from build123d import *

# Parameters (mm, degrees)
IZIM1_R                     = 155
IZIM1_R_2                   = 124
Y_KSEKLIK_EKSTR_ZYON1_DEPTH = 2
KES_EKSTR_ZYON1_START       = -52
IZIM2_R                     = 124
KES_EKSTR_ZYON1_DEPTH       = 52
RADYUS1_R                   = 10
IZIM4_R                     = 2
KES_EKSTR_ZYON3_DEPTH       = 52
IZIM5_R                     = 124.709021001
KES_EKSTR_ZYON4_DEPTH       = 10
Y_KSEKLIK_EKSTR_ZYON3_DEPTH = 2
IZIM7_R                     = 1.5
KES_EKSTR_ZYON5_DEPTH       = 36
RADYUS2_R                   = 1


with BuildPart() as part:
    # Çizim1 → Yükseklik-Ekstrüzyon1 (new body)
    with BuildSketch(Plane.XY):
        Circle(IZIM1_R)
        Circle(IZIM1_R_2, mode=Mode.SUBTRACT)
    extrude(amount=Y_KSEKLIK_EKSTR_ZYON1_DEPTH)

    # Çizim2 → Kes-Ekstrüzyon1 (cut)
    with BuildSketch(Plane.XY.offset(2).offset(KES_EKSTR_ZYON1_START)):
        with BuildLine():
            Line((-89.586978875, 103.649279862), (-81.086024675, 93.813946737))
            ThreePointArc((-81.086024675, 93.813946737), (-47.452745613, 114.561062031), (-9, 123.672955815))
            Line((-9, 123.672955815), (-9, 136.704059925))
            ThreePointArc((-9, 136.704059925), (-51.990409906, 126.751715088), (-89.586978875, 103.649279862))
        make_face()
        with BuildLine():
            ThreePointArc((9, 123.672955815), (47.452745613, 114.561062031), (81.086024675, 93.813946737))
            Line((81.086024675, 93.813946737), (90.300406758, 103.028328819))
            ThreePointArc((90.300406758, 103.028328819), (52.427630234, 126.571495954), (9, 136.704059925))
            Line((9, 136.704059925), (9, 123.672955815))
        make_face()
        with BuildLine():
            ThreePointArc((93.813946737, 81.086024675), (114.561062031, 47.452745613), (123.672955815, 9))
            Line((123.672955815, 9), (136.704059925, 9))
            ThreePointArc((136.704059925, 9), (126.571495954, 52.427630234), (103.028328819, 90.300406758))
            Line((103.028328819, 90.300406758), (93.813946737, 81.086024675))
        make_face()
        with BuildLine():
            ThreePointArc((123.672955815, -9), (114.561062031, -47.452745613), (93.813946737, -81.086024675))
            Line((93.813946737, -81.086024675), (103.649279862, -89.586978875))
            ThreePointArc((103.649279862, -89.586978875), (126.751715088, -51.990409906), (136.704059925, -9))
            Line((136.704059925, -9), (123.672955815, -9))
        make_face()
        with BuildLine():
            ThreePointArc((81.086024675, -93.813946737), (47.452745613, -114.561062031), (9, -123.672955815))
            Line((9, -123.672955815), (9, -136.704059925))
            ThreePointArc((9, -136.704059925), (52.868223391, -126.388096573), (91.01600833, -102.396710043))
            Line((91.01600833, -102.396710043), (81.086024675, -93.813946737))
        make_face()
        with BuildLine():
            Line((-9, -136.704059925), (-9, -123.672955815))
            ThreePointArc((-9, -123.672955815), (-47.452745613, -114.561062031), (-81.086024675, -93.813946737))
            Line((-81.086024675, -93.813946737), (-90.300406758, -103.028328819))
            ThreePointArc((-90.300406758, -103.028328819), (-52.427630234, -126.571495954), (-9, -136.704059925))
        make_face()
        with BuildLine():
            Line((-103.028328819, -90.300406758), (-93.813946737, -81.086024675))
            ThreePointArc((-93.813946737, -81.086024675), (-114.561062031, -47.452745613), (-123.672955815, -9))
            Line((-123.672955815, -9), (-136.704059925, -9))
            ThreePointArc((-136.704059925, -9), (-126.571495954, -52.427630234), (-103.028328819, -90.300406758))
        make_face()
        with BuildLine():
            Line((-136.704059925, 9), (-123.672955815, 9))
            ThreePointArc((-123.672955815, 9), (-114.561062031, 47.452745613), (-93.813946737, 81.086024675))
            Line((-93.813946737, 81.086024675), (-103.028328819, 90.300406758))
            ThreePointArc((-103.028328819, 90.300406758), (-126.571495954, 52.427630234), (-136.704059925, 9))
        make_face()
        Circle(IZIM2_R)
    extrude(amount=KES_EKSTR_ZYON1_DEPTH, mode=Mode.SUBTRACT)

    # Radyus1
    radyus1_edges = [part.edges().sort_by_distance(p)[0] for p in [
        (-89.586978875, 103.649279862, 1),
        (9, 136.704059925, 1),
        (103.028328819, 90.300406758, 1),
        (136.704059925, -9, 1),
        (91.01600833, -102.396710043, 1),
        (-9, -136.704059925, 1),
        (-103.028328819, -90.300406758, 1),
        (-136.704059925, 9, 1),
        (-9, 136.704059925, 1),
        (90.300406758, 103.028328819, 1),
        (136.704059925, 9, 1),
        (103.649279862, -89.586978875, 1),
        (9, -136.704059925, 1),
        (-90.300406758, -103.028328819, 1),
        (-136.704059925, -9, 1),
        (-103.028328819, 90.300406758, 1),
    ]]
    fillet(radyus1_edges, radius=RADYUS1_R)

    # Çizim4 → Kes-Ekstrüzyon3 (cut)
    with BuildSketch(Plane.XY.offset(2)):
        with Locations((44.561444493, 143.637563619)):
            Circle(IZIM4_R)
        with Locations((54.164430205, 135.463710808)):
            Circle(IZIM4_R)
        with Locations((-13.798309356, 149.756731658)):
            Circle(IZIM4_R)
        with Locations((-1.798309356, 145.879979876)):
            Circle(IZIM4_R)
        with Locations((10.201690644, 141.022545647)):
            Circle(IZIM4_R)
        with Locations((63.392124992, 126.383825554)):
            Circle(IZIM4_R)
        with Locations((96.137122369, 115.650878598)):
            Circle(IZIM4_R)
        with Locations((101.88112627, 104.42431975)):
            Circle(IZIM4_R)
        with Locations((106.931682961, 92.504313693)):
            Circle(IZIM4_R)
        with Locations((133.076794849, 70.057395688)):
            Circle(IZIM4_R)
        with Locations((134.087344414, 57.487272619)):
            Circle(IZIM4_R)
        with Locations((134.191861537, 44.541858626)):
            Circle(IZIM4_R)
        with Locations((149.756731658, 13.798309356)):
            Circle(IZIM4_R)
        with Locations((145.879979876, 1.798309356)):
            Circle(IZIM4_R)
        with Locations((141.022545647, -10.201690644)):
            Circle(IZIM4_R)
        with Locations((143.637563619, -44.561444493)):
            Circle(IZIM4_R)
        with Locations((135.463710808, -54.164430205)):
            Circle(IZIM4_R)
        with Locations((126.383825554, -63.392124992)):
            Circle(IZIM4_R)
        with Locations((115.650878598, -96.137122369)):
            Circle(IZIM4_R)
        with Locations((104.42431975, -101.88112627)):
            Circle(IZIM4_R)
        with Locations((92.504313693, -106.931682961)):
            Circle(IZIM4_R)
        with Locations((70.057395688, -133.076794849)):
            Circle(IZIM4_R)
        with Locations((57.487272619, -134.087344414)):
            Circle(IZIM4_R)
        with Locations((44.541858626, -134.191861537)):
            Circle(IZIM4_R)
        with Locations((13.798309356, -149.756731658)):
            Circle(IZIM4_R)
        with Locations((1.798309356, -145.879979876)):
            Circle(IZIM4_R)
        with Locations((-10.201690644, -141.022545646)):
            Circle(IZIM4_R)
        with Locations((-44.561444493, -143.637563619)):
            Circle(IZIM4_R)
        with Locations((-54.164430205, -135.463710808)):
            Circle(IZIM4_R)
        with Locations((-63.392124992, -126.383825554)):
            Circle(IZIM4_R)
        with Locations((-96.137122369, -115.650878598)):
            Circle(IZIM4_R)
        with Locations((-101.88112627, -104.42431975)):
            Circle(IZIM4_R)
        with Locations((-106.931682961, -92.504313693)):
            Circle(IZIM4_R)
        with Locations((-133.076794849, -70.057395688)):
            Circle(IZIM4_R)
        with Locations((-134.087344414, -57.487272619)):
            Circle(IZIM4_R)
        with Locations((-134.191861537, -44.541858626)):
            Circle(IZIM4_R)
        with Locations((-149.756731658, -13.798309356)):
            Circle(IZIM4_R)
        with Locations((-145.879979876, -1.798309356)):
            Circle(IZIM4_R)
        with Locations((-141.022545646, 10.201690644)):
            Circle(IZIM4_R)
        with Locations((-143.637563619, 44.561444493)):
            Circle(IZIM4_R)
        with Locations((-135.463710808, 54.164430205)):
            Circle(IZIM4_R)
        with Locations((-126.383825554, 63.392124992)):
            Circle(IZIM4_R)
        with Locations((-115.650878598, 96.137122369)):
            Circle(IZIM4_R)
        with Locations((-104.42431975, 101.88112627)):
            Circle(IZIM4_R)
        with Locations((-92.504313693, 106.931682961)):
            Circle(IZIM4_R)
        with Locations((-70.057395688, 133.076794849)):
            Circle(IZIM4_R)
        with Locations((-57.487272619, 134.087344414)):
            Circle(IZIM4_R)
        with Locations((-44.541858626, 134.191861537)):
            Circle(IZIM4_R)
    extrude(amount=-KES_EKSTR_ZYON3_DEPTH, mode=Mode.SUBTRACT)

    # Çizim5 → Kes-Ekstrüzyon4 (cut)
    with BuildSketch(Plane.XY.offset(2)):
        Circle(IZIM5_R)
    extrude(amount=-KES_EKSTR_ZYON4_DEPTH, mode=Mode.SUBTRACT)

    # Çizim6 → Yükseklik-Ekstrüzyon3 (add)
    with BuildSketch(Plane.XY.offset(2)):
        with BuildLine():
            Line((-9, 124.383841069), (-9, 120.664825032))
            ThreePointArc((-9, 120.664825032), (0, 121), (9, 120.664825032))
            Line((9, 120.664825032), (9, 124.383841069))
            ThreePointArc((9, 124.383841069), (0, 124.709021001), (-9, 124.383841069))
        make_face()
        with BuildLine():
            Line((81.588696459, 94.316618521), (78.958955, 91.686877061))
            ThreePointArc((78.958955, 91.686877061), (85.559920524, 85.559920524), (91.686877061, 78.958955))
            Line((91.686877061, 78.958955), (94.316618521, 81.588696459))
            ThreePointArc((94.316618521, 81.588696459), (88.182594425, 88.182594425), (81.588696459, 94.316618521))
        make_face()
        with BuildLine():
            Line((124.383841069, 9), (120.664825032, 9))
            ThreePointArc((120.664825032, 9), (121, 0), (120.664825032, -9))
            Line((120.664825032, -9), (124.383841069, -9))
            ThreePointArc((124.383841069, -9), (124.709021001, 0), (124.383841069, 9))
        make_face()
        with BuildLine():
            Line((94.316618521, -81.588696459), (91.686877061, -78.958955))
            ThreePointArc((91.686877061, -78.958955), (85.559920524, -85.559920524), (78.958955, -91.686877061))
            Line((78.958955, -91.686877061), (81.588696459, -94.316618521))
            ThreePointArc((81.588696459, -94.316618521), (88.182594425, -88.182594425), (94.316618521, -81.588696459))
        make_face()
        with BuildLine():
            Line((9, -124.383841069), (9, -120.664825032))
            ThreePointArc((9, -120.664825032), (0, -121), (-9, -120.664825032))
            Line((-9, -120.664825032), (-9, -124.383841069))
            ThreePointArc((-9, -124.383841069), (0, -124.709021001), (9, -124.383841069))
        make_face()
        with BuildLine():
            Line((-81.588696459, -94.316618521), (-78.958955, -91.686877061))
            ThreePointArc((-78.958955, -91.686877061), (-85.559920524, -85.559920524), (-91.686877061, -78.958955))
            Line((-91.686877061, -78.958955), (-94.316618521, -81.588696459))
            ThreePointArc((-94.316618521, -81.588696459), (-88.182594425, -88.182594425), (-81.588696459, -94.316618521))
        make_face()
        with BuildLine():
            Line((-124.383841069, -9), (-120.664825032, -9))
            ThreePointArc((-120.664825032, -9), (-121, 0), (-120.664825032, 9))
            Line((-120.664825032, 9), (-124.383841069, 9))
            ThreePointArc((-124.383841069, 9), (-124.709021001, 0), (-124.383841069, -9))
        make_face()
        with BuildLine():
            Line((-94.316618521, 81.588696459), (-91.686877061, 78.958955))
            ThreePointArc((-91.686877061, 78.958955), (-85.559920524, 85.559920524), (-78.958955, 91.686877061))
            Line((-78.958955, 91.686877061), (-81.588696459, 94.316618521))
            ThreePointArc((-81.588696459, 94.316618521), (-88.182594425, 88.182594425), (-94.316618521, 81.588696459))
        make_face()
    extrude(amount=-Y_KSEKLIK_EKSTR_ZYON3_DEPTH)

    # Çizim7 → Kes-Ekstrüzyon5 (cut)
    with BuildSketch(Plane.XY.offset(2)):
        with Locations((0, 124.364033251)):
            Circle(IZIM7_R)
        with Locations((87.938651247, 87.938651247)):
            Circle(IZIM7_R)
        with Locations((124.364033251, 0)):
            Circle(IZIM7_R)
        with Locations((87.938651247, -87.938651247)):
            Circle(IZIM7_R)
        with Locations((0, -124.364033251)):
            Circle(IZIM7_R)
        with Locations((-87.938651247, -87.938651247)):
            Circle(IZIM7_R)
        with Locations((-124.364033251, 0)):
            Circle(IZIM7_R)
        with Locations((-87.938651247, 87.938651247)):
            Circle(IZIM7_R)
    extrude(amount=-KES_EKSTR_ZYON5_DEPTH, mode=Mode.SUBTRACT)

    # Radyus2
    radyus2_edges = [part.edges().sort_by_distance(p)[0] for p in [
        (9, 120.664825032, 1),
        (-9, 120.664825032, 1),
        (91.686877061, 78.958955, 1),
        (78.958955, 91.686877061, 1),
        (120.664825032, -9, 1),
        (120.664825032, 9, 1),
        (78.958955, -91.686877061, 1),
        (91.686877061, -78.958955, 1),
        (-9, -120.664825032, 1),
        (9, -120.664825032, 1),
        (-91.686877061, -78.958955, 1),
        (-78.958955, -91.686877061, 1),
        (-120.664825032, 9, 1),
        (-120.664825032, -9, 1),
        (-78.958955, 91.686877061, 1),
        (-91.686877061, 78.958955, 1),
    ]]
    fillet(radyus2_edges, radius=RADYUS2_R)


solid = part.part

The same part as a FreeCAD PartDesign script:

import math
import FreeCAD as App
import Part
import Sketcher
Q = App.Units.Quantity


def edges_at(feature, points):
    """Names of the edges that pass closest to the given points."""
    edges = feature.Shape.Edges
    near = lambda p: min(range(len(edges)), key=lambda i: edges[i].distToShape(Part.Vertex(*p))[0])
    return sorted({f"Edge{near(p) + 1}" for p in points})

doc = App.newDocument("Part")
body = doc.addObject("PartDesign::Body", "Body")

# Sketch on XY plane
sketch1 = body.newObject("Sketcher::SketchObject", "Sketch")
sketch1.AttachmentSupport = (doc.getObject("XY_Plane"), [""])
sketch1.MapMode = "FlatFace"
sketch1.addGeometry([
    Part.Circle(App.Vector(0, 0, 0), App.Vector(0, 0, 1), 155),
    Part.Circle(App.Vector(0, 0, 0), App.Vector(0, 0, 1), 124),
], False)
sketch1.addConstraint([
    Sketcher.Constraint("Coincident", 0, 3, -1, 1),
    Sketcher.Constraint("Coincident", 1, 3, -1, 1),
    Sketcher.Constraint("Diameter", 0, Q("310 mm")),
    Sketcher.Constraint("Diameter", 1, Q("248 mm")),
])
pad1 = body.newObject("PartDesign::Pad", "Pad")
pad1.Profile = sketch1
pad1.Length = 2

# Sketch on XY plane
sketch2 = body.newObject("Sketcher::SketchObject", "Sketch001")
sketch2.AttachmentSupport = (doc.getObject("XY_Plane"), [""])
sketch2.MapMode = "FlatFace"
sketch2.AttachmentOffset = App.Placement(App.Vector(0, 0, -50), App.Rotation())
sketch2.addGeometry([
    Part.LineSegment(App.Vector(-90, 104, 0), App.Vector(-81, 94, 0)),  # 0
    Part.ArcOfCircle(Part.Circle(App.Vector(0, 0, 0), App.Vector(0, 0, 1), 124), math.radians(130.84), math.radians(139.16)),  # 1
    Part.LineSegment(App.Vector(-94, 81, 0), App.Vector(-103, 90, 0)),  # 2
    Part.ArcOfCircle(Part.Circle(App.Vector(0, 0, 0), App.Vector(0, 0, 1), 137), math.radians(139), math.radians(176)),  # 3
    Part.LineSegment(App.Vector(-137, 9, 0), App.Vector(-124, 9, 0)),  # 4
    Part.ArcOfCircle(Part.Circle(App.Vector(0, 0, 0), App.Vector(0, 0, 1), 124), math.radians(175.84), math.radians(184.16)),  # 5
    Part.LineSegment(App.Vector(-124, -9, 0), App.Vector(-137, -9, 0)),  # 6
    Part.ArcOfCircle(Part.Circle(App.Vector(0, 0, 0), App.Vector(0, 0, 1), 137), math.radians(-176), math.radians(-139)),  # 7
    Part.LineSegment(App.Vector(-103, -90, 0), App.Vector(-94, -81, 0)),  # 8
    Part.ArcOfCircle(Part.Circle(App.Vector(0, 0, 0), App.Vector(0, 0, 1), 124), math.radians(-139.16), math.radians(-130.84)),  # 9
    Part.LineSegment(App.Vector(-81, -94, 0), App.Vector(-90, -103, 0)),  # 10
    Part.ArcOfCircle(Part.Circle(App.Vector(0, 0, 0), App.Vector(0, 0, 1), 137), math.radians(-131), math.radians(-94)),  # 11
    Part.LineSegment(App.Vector(-9, -137, 0), App.Vector(-9, -124, 0)),  # 12
    Part.ArcOfCircle(Part.Circle(App.Vector(0, 0, 0), App.Vector(0, 0, 1), 124), math.radians(-94.16), math.radians(-85.84)),  # 13
    Part.LineSegment(App.Vector(9, -124, 0), App.Vector(9, -137, 0)),  # 14
    Part.ArcOfCircle(Part.Circle(App.Vector(0, 0, 0), App.Vector(0, 0, 1), 137), math.radians(-86), math.radians(-48)),  # 15
    Part.LineSegment(App.Vector(91, -102, 0), App.Vector(81, -94, 0)),  # 16
    Part.ArcOfCircle(Part.Circle(App.Vector(0, 0, 0), App.Vector(0, 0, 1), 124), math.radians(-49.16), math.radians(-40.84)),  # 17
    Part.LineSegment(App.Vector(94, -81, 0), App.Vector(104, -90, 0)),  # 18
    Part.ArcOfCircle(Part.Circle(App.Vector(0, 0, 0), App.Vector(0, 0, 1), 137), math.radians(-41), math.radians(-4)),  # 19
    Part.LineSegment(App.Vector(137, -9, 0), App.Vector(124, -9, 0)),  # 20
    Part.ArcOfCircle(Part.Circle(App.Vector(0, 0, 0), App.Vector(0, 0, 1), 124), math.radians(-4.16), math.radians(4.16)),  # 21
    Part.LineSegment(App.Vector(124, 9, 0), App.Vector(137, 9, 0)),  # 22
    Part.ArcOfCircle(Part.Circle(App.Vector(0, 0, 0), App.Vector(0, 0, 1), 137), math.radians(4), math.radians(41)),  # 23
    Part.LineSegment(App.Vector(103, 90, 0), App.Vector(94, 81, 0)),  # 24
    Part.ArcOfCircle(Part.Circle(App.Vector(0, 0, 0), App.Vector(0, 0, 1), 124), math.radians(40.84), math.radians(49.16)),  # 25
    Part.LineSegment(App.Vector(81, 94, 0), App.Vector(90, 103, 0)),  # 26
    Part.ArcOfCircle(Part.Circle(App.Vector(0, 0, 0), App.Vector(0, 0, 1), 137), math.radians(49), math.radians(86)),  # 27
    Part.LineSegment(App.Vector(9, 137, 0), App.Vector(9, 124, 0)),  # 28
    Part.ArcOfCircle(Part.Circle(App.Vector(0, 0, 0), App.Vector(0, 0, 1), 124), math.radians(85.84), math.radians(94.16)),  # 29
    Part.LineSegment(App.Vector(-9, 124, 0), App.Vector(-9, 137, 0)),  # 30
    Part.ArcOfCircle(Part.Circle(App.Vector(0, 0, 0), App.Vector(0, 0, 1), 137), math.radians(94), math.radians(131)),  # 31
], False)
sketch2.addConstraint([
    Sketcher.Constraint("Coincident", 0, 2, 1, 1),
    Sketcher.Constraint("Coincident", 1, 2, 2, 1),
    Sketcher.Constraint("Coincident", 2, 2, 3, 1),
    Sketcher.Constraint("Coincident", 3, 2, 4, 1),
    Sketcher.Constraint("Coincident", 4, 2, 5, 1),
    Sketcher.Constraint("Coincident", 5, 2, 6, 1),
    Sketcher.Constraint("Coincident", 6, 2, 7, 1),
    Sketcher.Constraint("Coincident", 7, 2, 8, 1),
    Sketcher.Constraint("Coincident", 8, 2, 9, 1),
    Sketcher.Constraint("Coincident", 9, 2, 10, 1),
    Sketcher.Constraint("Coincident", 10, 2, 11, 1),
    Sketcher.Constraint("Coincident", 11, 2, 12, 1),
    Sketcher.Constraint("Coincident", 12, 2, 13, 1),
    Sketcher.Constraint("Coincident", 13, 2, 14, 1),
    Sketcher.Constraint("Coincident", 14, 2, 15, 1),
    Sketcher.Constraint("Coincident", 15, 2, 16, 1),
    Sketcher.Constraint("Coincident", 16, 2, 17, 1),
    Sketcher.Constraint("Coincident", 17, 2, 18, 1),
    Sketcher.Constraint("Coincident", 18, 2, 19, 1),
    Sketcher.Constraint("Coincident", 19, 2, 20, 1),
    Sketcher.Constraint("Coincident", 20, 2, 21, 1),
    Sketcher.Constraint("Coincident", 21, 2, 22, 1),
    Sketcher.Constraint("Coincident", 22, 2, 23, 1),
    Sketcher.Constraint("Coincident", 23, 2, 24, 1),
    Sketcher.Constraint("Coincident", 24, 2, 25, 1),
    Sketcher.Constraint("Coincident", 25, 2, 26, 1),
    Sketcher.Constraint("Coincident", 26, 2, 27, 1),
    Sketcher.Constraint("Coincident", 27, 2, 28, 1),
    Sketcher.Constraint("Coincident", 28, 2, 29, 1),
    Sketcher.Constraint("Coincident", 29, 2, 30, 1),
    Sketcher.Constraint("Coincident", 30, 2, 31, 1),
    Sketcher.Constraint("Coincident", 31, 2, 0, 1),
    Sketcher.Constraint("Horizontal", 4),
    Sketcher.Constraint("Horizontal", 6),
    Sketcher.Constraint("Vertical", 12),
    Sketcher.Constraint("Vertical", 14),
    Sketcher.Constraint("Horizontal", 20),
    Sketcher.Constraint("Horizontal", 22),
    Sketcher.Constraint("Vertical", 28),
    Sketcher.Constraint("Vertical", 30),
    Sketcher.Constraint("Coincident", 1, 3, -1, 1),
    Sketcher.Constraint("Coincident", 3, 3, -1, 1),
    Sketcher.Constraint("Coincident", 5, 3, -1, 1),
    Sketcher.Constraint("Coincident", 7, 3, -1, 1),
    Sketcher.Constraint("Coincident", 9, 3, -1, 1),
    Sketcher.Constraint("Coincident", 11, 3, -1, 1),
    Sketcher.Constraint("Coincident", 13, 3, -1, 1),
    Sketcher.Constraint("Coincident", 15, 3, -1, 1),
    Sketcher.Constraint("Coincident", 17, 3, -1, 1),
    Sketcher.Constraint("Coincident", 19, 3, -1, 1),
    Sketcher.Constraint("Coincident", 21, 3, -1, 1),
    Sketcher.Constraint("Coincident", 23, 3, -1, 1),
    Sketcher.Constraint("Coincident", 25, 3, -1, 1),
    Sketcher.Constraint("Coincident", 27, 3, -1, 1),
    Sketcher.Constraint("Coincident", 29, 3, -1, 1),
    Sketcher.Constraint("Coincident", 31, 3, -1, 1),
    Sketcher.Constraint("Equal", 1, 5),
    Sketcher.Constraint("Equal", 3, 7),
    Sketcher.Constraint("Equal", 5, 9),
    Sketcher.Constraint("Equal", 7, 11),
    Sketcher.Constraint("Equal", 9, 13),
    Sketcher.Constraint("Equal", 11, 15),
    Sketcher.Constraint("Equal", 13, 17),
    Sketcher.Constraint("Equal", 15, 19),
    Sketcher.Constraint("Equal", 17, 21),
    Sketcher.Constraint("Equal", 19, 23),
    Sketcher.Constraint("Equal", 21, 25),
    Sketcher.Constraint("Equal", 23, 27),
    Sketcher.Constraint("Equal", 25, 29),
    Sketcher.Constraint("Equal", 27, 31),
    Sketcher.Constraint("Perpendicular", 2, 8),
    Sketcher.Constraint("Parallel", 8, 10),
    Sketcher.Constraint("Parallel", 16, 18),
    Sketcher.Constraint("Parallel", 10, 24),
    Sketcher.Constraint("Parallel", 24, 26),
    Sketcher.Constraint("Horizontal", 12, 2, 13, 2),
    Sketcher.Constraint("Horizontal", 9, 2, 16, 2),
    Sketcher.Constraint("Horizontal", 8, 2, 17, 2),
    Sketcher.Constraint("Horizontal", 6, 2, 19, 2),
    Sketcher.Constraint("Horizontal", 4, 2, 21, 2),
    Sketcher.Constraint("Horizontal", 2, 2, 23, 2),
    Sketcher.Constraint("Horizontal", 1, 2, 24, 2),
    Sketcher.Constraint("Horizontal", 0, 2, 25, 2),
    Sketcher.Constraint("Horizontal", 28, 2, 29, 2),
    Sketcher.Constraint("Vertical", 4, 2, 5, 2),
    Sketcher.Constraint("Vertical", 2, 2, 7, 2),
    Sketcher.Constraint("Vertical", 0, 2, 9, 2),
    Sketcher.Constraint("Vertical", 14, 2, 27, 2),
    Sketcher.Constraint("Radius", 1, Q("124 mm")),
    Sketcher.Constraint("Radius", 3, Q("137 mm")),
    Sketcher.Constraint("DistanceY", -1, 1, 3, 2, Q("9 mm")),
    Sketcher.Constraint("DistanceX", 11, 2, -1, 1, Q("9 mm")),
    Sketcher.Constraint("DistanceX", 2, 2, -1, 1, Q("103.028329 mm")),
    Sketcher.Constraint("DistanceY", 10, 2, -1, 1, Q("103.028329 mm")),
    Sketcher.Constraint("DistanceX", -1, 1, 15, 2, Q("91.016008 mm")),
    Sketcher.Constraint("DistanceX", 31, 2, -1, 1, Q("89.586979 mm")),
])
pocket1 = body.newObject("PartDesign::Pocket", "Pocket")
pocket1.Profile = sketch2
pocket1.Length = 52
pocket1.Reversed = True
doc.recompute()

fillet = body.newObject("PartDesign::Fillet", "Fillet")
fillet.Base = (pocket1, edges_at(pocket1, [
    (-89.587, 103.649, 1),
    (9, 136.704, 1),
    (103.028, 90.3, 1),
    (136.704, -9, 1),
    (91.016, -102.397, 1),
    (-9, -136.704, 1),
    (-103.028, -90.3, 1),
    (-136.704, 9, 1),
    (-9, 136.704, 1),
    (90.3, 103.028, 1),
    (136.704, 9, 1),
    (103.649, -89.587, 1),
    (9, -136.704, 1),
    (-90.3, -103.028, 1),
    (-136.704, -9, 1),
    (-103.028, 90.3, 1),
]))
fillet.Radius = 10

# Sketch on XY plane
sketch3 = body.newObject("Sketcher::SketchObject", "Sketch002")
sketch3.AttachmentSupport = (doc.getObject("XY_Plane"), [""])
sketch3.MapMode = "FlatFace"
sketch3.AttachmentOffset = App.Placement(App.Vector(0, 0, 2), App.Rotation())
sketch3.addGeometry([
    Part.Circle(App.Vector(44.6, 143.6, 0), App.Vector(0, 0, 1), 2),  # 0
    Part.Circle(App.Vector(54.2, 135.5, 0), App.Vector(0, 0, 1), 2),  # 1
    Part.Circle(App.Vector(-13.8, 149.8, 0), App.Vector(0, 0, 1), 2),  # 2
    Part.Circle(App.Vector(-1.8, 145.9, 0), App.Vector(0, 0, 1), 2),  # 3
    Part.Circle(App.Vector(10.2, 141, 0), App.Vector(0, 0, 1), 2),  # 4
    Part.Circle(App.Vector(63.4, 126.4, 0), App.Vector(0, 0, 1), 2),  # 5
    Part.Circle(App.Vector(96.1, 115.7, 0), App.Vector(0, 0, 1), 2),  # 6
    Part.Circle(App.Vector(101.9, 104.4, 0), App.Vector(0, 0, 1), 2),  # 7
    Part.Circle(App.Vector(106.9, 92.5, 0), App.Vector(0, 0, 1), 2),  # 8
    Part.Circle(App.Vector(133.1, 70.1, 0), App.Vector(0, 0, 1), 2),  # 9
    Part.Circle(App.Vector(134.1, 57.5, 0), App.Vector(0, 0, 1), 2),  # 10
    Part.Circle(App.Vector(134.2, 44.5, 0), App.Vector(0, 0, 1), 2),  # 11
    Part.Circle(App.Vector(149.8, 13.8, 0), App.Vector(0, 0, 1), 2),  # 12
    Part.Circle(App.Vector(145.9, 1.8, 0), App.Vector(0, 0, 1), 2),  # 13
    Part.Circle(App.Vector(141, -10.2, 0), App.Vector(0, 0, 1), 2),  # 14
    Part.Circle(App.Vector(143.6, -44.6, 0), App.Vector(0, 0, 1), 2),  # 15
    Part.Circle(App.Vector(135.5, -54.2, 0), App.Vector(0, 0, 1), 2),  # 16
    Part.Circle(App.Vector(126.4, -63.4, 0), App.Vector(0, 0, 1), 2),  # 17
    Part.Circle(App.Vector(115.7, -96.1, 0), App.Vector(0, 0, 1), 2),  # 18
    Part.Circle(App.Vector(104.4, -101.9, 0), App.Vector(0, 0, 1), 2),  # 19
    Part.Circle(App.Vector(92.5, -106.9, 0), App.Vector(0, 0, 1), 2),  # 20
    Part.Circle(App.Vector(70.1, -133.1, 0), App.Vector(0, 0, 1), 2),  # 21
    Part.Circle(App.Vector(57.5, -134.1, 0), App.Vector(0, 0, 1), 2),  # 22
    Part.Circle(App.Vector(44.5, -134.2, 0), App.Vector(0, 0, 1), 2),  # 23
    Part.Circle(App.Vector(13.8, -149.8, 0), App.Vector(0, 0, 1), 2),  # 24
    Part.Circle(App.Vector(1.8, -145.9, 0), App.Vector(0, 0, 1), 2),  # 25
    Part.Circle(App.Vector(-10.2, -141, 0), App.Vector(0, 0, 1), 2),  # 26
    Part.Circle(App.Vector(-44.6, -143.6, 0), App.Vector(0, 0, 1), 2),  # 27
    Part.Circle(App.Vector(-54.2, -135.5, 0), App.Vector(0, 0, 1), 2),  # 28
    Part.Circle(App.Vector(-63.4, -126.4, 0), App.Vector(0, 0, 1), 2),  # 29
    Part.Circle(App.Vector(-96.1, -115.7, 0), App.Vector(0, 0, 1), 2),  # 30
    Part.Circle(App.Vector(-101.9, -104.4, 0), App.Vector(0, 0, 1), 2),  # 31
    Part.Circle(App.Vector(-106.9, -92.5, 0), App.Vector(0, 0, 1), 2),  # 32
    Part.Circle(App.Vector(-133.1, -70.1, 0), App.Vector(0, 0, 1), 2),  # 33
    Part.Circle(App.Vector(-134.1, -57.5, 0), App.Vector(0, 0, 1), 2),  # 34
    Part.Circle(App.Vector(-134.2, -44.5, 0), App.Vector(0, 0, 1), 2),  # 35
    Part.Circle(App.Vector(-149.8, -13.8, 0), App.Vector(0, 0, 1), 2),  # 36
    Part.Circle(App.Vector(-145.9, -1.8, 0), App.Vector(0, 0, 1), 2),  # 37
    Part.Circle(App.Vector(-141, 10.2, 0), App.Vector(0, 0, 1), 2),  # 38
    Part.Circle(App.Vector(-143.6, 44.6, 0), App.Vector(0, 0, 1), 2),  # 39
    Part.Circle(App.Vector(-135.5, 54.2, 0), App.Vector(0, 0, 1), 2),  # 40
    Part.Circle(App.Vector(-126.4, 63.4, 0), App.Vector(0, 0, 1), 2),  # 41
    Part.Circle(App.Vector(-115.7, 96.1, 0), App.Vector(0, 0, 1), 2),  # 42
    Part.Circle(App.Vector(-104.4, 101.9, 0), App.Vector(0, 0, 1), 2),  # 43
    Part.Circle(App.Vector(-92.5, 106.9, 0), App.Vector(0, 0, 1), 2),  # 44
    Part.Circle(App.Vector(-70.1, 133.1, 0), App.Vector(0, 0, 1), 2),  # 45
    Part.Circle(App.Vector(-57.5, 134.1, 0), App.Vector(0, 0, 1), 2),  # 46
    Part.Circle(App.Vector(-44.5, 134.2, 0), App.Vector(0, 0, 1), 2),  # 47
], False)
sketch3.addConstraint([
    Sketcher.Constraint("Equal", 0, 1),
    Sketcher.Constraint("Equal", 1, 2),
    Sketcher.Constraint("Equal", 2, 3),
    Sketcher.Constraint("Equal", 3, 4),
    Sketcher.Constraint("Equal", 4, 5),
    Sketcher.Constraint("Equal", 5, 6),
    Sketcher.Constraint("Equal", 6, 7),
    Sketcher.Constraint("Equal", 7, 8),
    Sketcher.Constraint("Equal", 8, 9),
    Sketcher.Constraint("Equal", 9, 10),
    Sketcher.Constraint("Equal", 10, 11),
    Sketcher.Constraint("Equal", 11, 12),
    Sketcher.Constraint("Equal", 12, 13),
    Sketcher.Constraint("Equal", 13, 14),
    Sketcher.Constraint("Equal", 14, 15),
    Sketcher.Constraint("Equal", 15, 16),
    Sketcher.Constraint("Equal", 16, 17),
    Sketcher.Constraint("Equal", 17, 18),
    Sketcher.Constraint("Equal", 18, 19),
    Sketcher.Constraint("Equal", 19, 20),
    Sketcher.Constraint("Equal", 20, 21),
    Sketcher.Constraint("Equal", 21, 22),
    Sketcher.Constraint("Equal", 22, 23),
    Sketcher.Constraint("Equal", 23, 24),
    Sketcher.Constraint("Equal", 24, 25),
    Sketcher.Constraint("Equal", 25, 26),
    Sketcher.Constraint("Equal", 26, 27),
    Sketcher.Constraint("Equal", 27, 28),
    Sketcher.Constraint("Equal", 28, 29),
    Sketcher.Constraint("Equal", 29, 30),
    Sketcher.Constraint("Equal", 30, 31),
    Sketcher.Constraint("Equal", 31, 32),
    Sketcher.Constraint("Equal", 32, 33),
    Sketcher.Constraint("Equal", 33, 34),
    Sketcher.Constraint("Equal", 34, 35),
    Sketcher.Constraint("Equal", 35, 36),
    Sketcher.Constraint("Equal", 36, 37),
    Sketcher.Constraint("Equal", 37, 38),
    Sketcher.Constraint("Equal", 38, 39),
    Sketcher.Constraint("Equal", 39, 40),
    Sketcher.Constraint("Equal", 40, 41),
    Sketcher.Constraint("Equal", 41, 42),
    Sketcher.Constraint("Equal", 42, 43),
    Sketcher.Constraint("Equal", 43, 44),
    Sketcher.Constraint("Equal", 44, 45),
    Sketcher.Constraint("Equal", 45, 46),
    Sketcher.Constraint("Equal", 46, 47),
    Sketcher.Constraint("Symmetric", 2, 3, 24, 3, -1, 1),
    Sketcher.Constraint("Symmetric", 3, 3, 25, 3, -1, 1),
    Sketcher.Constraint("Symmetric", 4, 3, 26, 3, -1, 1),
    Sketcher.Constraint("Symmetric", 0, 3, 27, 3, -1, 1),
    Sketcher.Constraint("Symmetric", 1, 3, 28, 3, -1, 1),
    Sketcher.Constraint("Symmetric", 5, 3, 29, 3, -1, 1),
    Sketcher.Constraint("Symmetric", 6, 3, 30, 3, -1, 1),
    Sketcher.Constraint("Symmetric", 7, 3, 31, 3, -1, 1),
    Sketcher.Constraint("Symmetric", 8, 3, 32, 3, -1, 1),
    Sketcher.Constraint("Symmetric", 9, 3, 33, 3, -1, 1),
    Sketcher.Constraint("Symmetric", 10, 3, 34, 3, -1, 1),
    Sketcher.Constraint("Symmetric", 11, 3, 35, 3, -1, 1),
    Sketcher.Constraint("Symmetric", 12, 3, 36, 3, -1, 1),
    Sketcher.Constraint("Symmetric", 13, 3, 37, 3, -1, 1),
    Sketcher.Constraint("Symmetric", 14, 3, 38, 3, -1, 1),
    Sketcher.Constraint("Symmetric", 15, 3, 39, 3, -1, 1),
    Sketcher.Constraint("Symmetric", 16, 3, 40, 3, -1, 1),
    Sketcher.Constraint("Symmetric", 17, 3, 41, 3, -1, 1),
    Sketcher.Constraint("Symmetric", 18, 3, 42, 3, -1, 1),
    Sketcher.Constraint("Symmetric", 19, 3, 43, 3, -1, 1),
    Sketcher.Constraint("Symmetric", 20, 3, 44, 3, -1, 1),
    Sketcher.Constraint("Symmetric", 21, 3, 45, 3, -1, 1),
    Sketcher.Constraint("Symmetric", 22, 3, 46, 3, -1, 1),
    Sketcher.Constraint("Symmetric", 23, 3, 47, 3, -1, 1),
    Sketcher.Constraint("Diameter", 0, Q("4 mm")),
    Sketcher.Constraint("DistanceX", 2, 3, 3, 3, Q("12 mm")),
    Sketcher.Constraint("DistanceX", 3, 3, 4, 3, Q("12 mm")),
    Sketcher.Constraint("DistanceY", 13, 3, 12, 3, Q("12 mm")),
    Sketcher.Constraint("DistanceY", 14, 3, 13, 3, Q("12 mm")),
    Sketcher.Constraint("DistanceX", 5, 3, 7, 3, Q("38.489001 mm")),
    Sketcher.Constraint("DistanceY", 19, 3, 17, 3, Q("38.489001 mm")),
    Sketcher.Constraint("DistanceY", 6, 3, 3, 3, Q("30.229101 mm")),
    Sketcher.Constraint("DistanceX", 10, 3, 14, 3, Q("6.935201 mm")),
    Sketcher.Constraint("DistanceX", 18, 3, 13, 3, Q("30.229101 mm")),
    Sketcher.Constraint("DistanceY", 26, 3, 22, 3, Q("6.935201 mm")),
    Sketcher.Constraint("DistanceX", -1, 1, 1, 3, Q("54.16443 mm")),
    Sketcher.Constraint("DistanceY", -1, 1, 1, 3, Q("135.463711 mm")),
    Sketcher.Constraint("DistanceX", 2, 3, -1, 1, Q("13.798309 mm")),
    Sketcher.Constraint("DistanceY", -1, 1, 2, 3, Q("149.756732 mm")),
    Sketcher.Constraint("DistanceY", -1, 1, 3, 3, Q("145.87998 mm")),
    Sketcher.Constraint("DistanceY", -1, 1, 7, 3, Q("104.42432 mm")),
    Sketcher.Constraint("DistanceX", -1, 1, 11, 3, Q("134.191862 mm")),
    Sketcher.Constraint("DistanceY", -1, 1, 11, 3, Q("44.541859 mm")),
    Sketcher.Constraint("DistanceX", -1, 1, 12, 3, Q("149.756732 mm")),
    Sketcher.Constraint("DistanceY", -1, 1, 12, 3, Q("13.798309 mm")),
    Sketcher.Constraint("DistanceX", -1, 1, 13, 3, Q("145.87998 mm")),
    Sketcher.Constraint("DistanceX", -1, 1, 16, 3, Q("135.463711 mm")),
    Sketcher.Constraint("DistanceY", 16, 3, -1, 1, Q("54.16443 mm")),
    Sketcher.Constraint("DistanceX", -1, 1, 19, 3, Q("104.42432 mm")),
    Sketcher.Constraint("DistanceX", -1, 1, 23, 3, Q("44.541859 mm")),
    Sketcher.Constraint("DistanceY", 23, 3, -1, 1, Q("134.191862 mm")),
    Sketcher.Constraint("DistanceY", 0, 3, 2, 3, Q("6.119168 mm")),
    Sketcher.Constraint("DistanceX", 0, 3, 5, 3, Q("18.83068 mm")),
    Sketcher.Constraint("DistanceY", 5, 3, 0, 3, Q("17.253738 mm")),
    Sketcher.Constraint("DistanceY", 5, 3, 4, 3, Q("14.63872 mm")),
    Sketcher.Constraint("DistanceX", 4, 3, 6, 3, Q("85.935432 mm")),
    Sketcher.Constraint("DistanceX", 6, 3, 8, 3, Q("10.794561 mm")),
    Sketcher.Constraint("DistanceY", 8, 3, 5, 3, Q("33.879512 mm")),
    Sketcher.Constraint("DistanceX", 0, 3, 8, 3, Q("62.370238 mm")),
    Sketcher.Constraint("DistanceX", 8, 3, 9, 3, Q("26.145112 mm")),
    Sketcher.Constraint("DistanceY", 9, 3, 8, 3, Q("22.446918 mm")),
    Sketcher.Constraint("DistanceX", 9, 3, 10, 3, Q("1.01055 mm")),
    Sketcher.Constraint("DistanceY", 10, 3, 8, 3, Q("35.017041 mm")),
    Sketcher.Constraint("DistanceX", 15, 3, 12, 3, Q("6.119168 mm")),
    Sketcher.Constraint("DistanceX", 17, 3, 15, 3, Q("17.253738 mm")),
    Sketcher.Constraint("DistanceY", 17, 3, 15, 3, Q("18.83068 mm")),
    Sketcher.Constraint("DistanceY", 18, 3, 14, 3, Q("85.935432 mm")),
    Sketcher.Constraint("DistanceY", 20, 3, 18, 3, Q("10.794561 mm")),
    Sketcher.Constraint("DistanceX", 20, 3, 17, 3, Q("33.879512 mm")),
    Sketcher.Constraint("DistanceY", 20, 3, 15, 3, Q("62.370238 mm")),
    Sketcher.Constraint("DistanceX", 21, 3, 20, 3, Q("22.446918 mm")),
    Sketcher.Constraint("DistanceY", 21, 3, 20, 3, Q("26.145112 mm")),
    Sketcher.Constraint("DistanceX", 22, 3, 20, 3, Q("35.017041 mm")),
])
pocket2 = body.newObject("PartDesign::Pocket", "Pocket001")
pocket2.Profile = sketch3
pocket2.Length = 52

# Sketch on XY plane
sketch4 = body.newObject("Sketcher::SketchObject", "Sketch003")
sketch4.AttachmentSupport = (doc.getObject("XY_Plane"), [""])
sketch4.MapMode = "FlatFace"
sketch4.AttachmentOffset = App.Placement(App.Vector(0, 0, 2), App.Rotation())
sketch4.addGeometry(Part.Circle(App.Vector(0, 0, 0), App.Vector(0, 0, 1), 125), False)
sketch4.addConstraint([
    Sketcher.Constraint("Coincident", 0, 3, -1, 1),
    Sketcher.Constraint("Diameter", 0, Q("249.418042 mm")),
])
pocket3 = body.newObject("PartDesign::Pocket", "Pocket002")
pocket3.Profile = sketch4
pocket3.Length = 10

# Sketch on XY plane
sketch5 = body.newObject("Sketcher::SketchObject", "Sketch004")
sketch5.AttachmentSupport = (doc.getObject("XY_Plane"), [""])
sketch5.MapMode = "FlatFace"
sketch5.AttachmentOffset = App.Placement(App.Vector(0, 0, 2), App.Rotation())
sketch5.addGeometry([
    Part.LineSegment(App.Vector(-9, 124.4, 0), App.Vector(-9, 120.7, 0)),  # 0
    Part.ArcOfCircle(Part.Circle(App.Vector(0, 0, 0), App.Vector(0, 0, 1), 121), math.radians(85.73), math.radians(94.27)),  # 1
    Part.LineSegment(App.Vector(9, 120.7, 0), App.Vector(9, 124.4, 0)),  # 2
    Part.ArcOfCircle(Part.Circle(App.Vector(0, 0, 0), App.Vector(0, 0, 1), 124.7), math.radians(85.86), math.radians(94.14)),  # 3
    Part.LineSegment(App.Vector(81.6, 94.3, 0), App.Vector(79, 91.7, 0)),  # 4
    Part.ArcOfCircle(Part.Circle(App.Vector(0, 0, 0), App.Vector(0, 0, 1), 121), math.radians(40.73), math.radians(49.27)),  # 5
    Part.LineSegment(App.Vector(91.7, 79, 0), App.Vector(94.3, 81.6, 0)),  # 6
    Part.ArcOfCircle(Part.Circle(App.Vector(0, 0, 0), App.Vector(0, 0, 1), 124.7), math.radians(40.86), math.radians(49.14)),  # 7
    Part.LineSegment(App.Vector(124.4, 9, 0), App.Vector(120.7, 9, 0)),  # 8
    Part.ArcOfCircle(Part.Circle(App.Vector(0, 0, 0), App.Vector(0, 0, 1), 121), math.radians(-4.27), math.radians(4.27)),  # 9
    Part.LineSegment(App.Vector(120.7, -9, 0), App.Vector(124.4, -9, 0)),  # 10
    Part.ArcOfCircle(Part.Circle(App.Vector(0, 0, 0), App.Vector(0, 0, 1), 124.7), math.radians(-4.14), math.radians(4.14)),  # 11
    Part.LineSegment(App.Vector(94.3, -81.6, 0), App.Vector(91.7, -79, 0)),  # 12
    Part.ArcOfCircle(Part.Circle(App.Vector(0, 0, 0), App.Vector(0, 0, 1), 121), math.radians(-49.27), math.radians(-40.73)),  # 13
    Part.LineSegment(App.Vector(79, -91.7, 0), App.Vector(81.6, -94.3, 0)),  # 14
    Part.ArcOfCircle(Part.Circle(App.Vector(0, 0, 0), App.Vector(0, 0, 1), 124.7), math.radians(-49.14), math.radians(-40.86)),  # 15
    Part.LineSegment(App.Vector(9, -124.4, 0), App.Vector(9, -120.7, 0)),  # 16
    Part.ArcOfCircle(Part.Circle(App.Vector(0, 0, 0), App.Vector(0, 0, 1), 121), math.radians(-94.27), math.radians(-85.73)),  # 17
    Part.LineSegment(App.Vector(-9, -120.7, 0), App.Vector(-9, -124.4, 0)),  # 18
    Part.ArcOfCircle(Part.Circle(App.Vector(0, 0, 0), App.Vector(0, 0, 1), 124.7), math.radians(-94.14), math.radians(-85.86)),  # 19
    Part.LineSegment(App.Vector(-81.6, -94.3, 0), App.Vector(-79, -91.7, 0)),  # 20
    Part.ArcOfCircle(Part.Circle(App.Vector(0, 0, 0), App.Vector(0, 0, 1), 121), math.radians(-139.27), math.radians(-130.73)),  # 21
    Part.LineSegment(App.Vector(-91.7, -79, 0), App.Vector(-94.3, -81.6, 0)),  # 22
    Part.ArcOfCircle(Part.Circle(App.Vector(0, 0, 0), App.Vector(0, 0, 1), 124.7), math.radians(-139.14), math.radians(-130.86)),  # 23
    Part.LineSegment(App.Vector(-124.4, -9, 0), App.Vector(-120.7, -9, 0)),  # 24
    Part.ArcOfCircle(Part.Circle(App.Vector(0, 0, 0), App.Vector(0, 0, 1), 121), math.radians(175.73), math.radians(184.27)),  # 25
    Part.LineSegment(App.Vector(-120.7, 9, 0), App.Vector(-124.4, 9, 0)),  # 26
    Part.ArcOfCircle(Part.Circle(App.Vector(0, 0, 0), App.Vector(0, 0, 1), 124.7), math.radians(175.86), math.radians(184.14)),  # 27
    Part.LineSegment(App.Vector(-94.3, 81.6, 0), App.Vector(-91.7, 79, 0)),  # 28
    Part.ArcOfCircle(Part.Circle(App.Vector(0, 0, 0), App.Vector(0, 0, 1), 121), math.radians(130.73), math.radians(139.27)),  # 29
    Part.LineSegment(App.Vector(-79, 91.7, 0), App.Vector(-81.6, 94.3, 0)),  # 30
    Part.ArcOfCircle(Part.Circle(App.Vector(0, 0, 0), App.Vector(0, 0, 1), 124.7), math.radians(130.86), math.radians(139.14)),  # 31
], False)
sketch5.addConstraint([
    Sketcher.Constraint("Coincident", 0, 2, 1, 2),
    Sketcher.Constraint("Coincident", 1, 1, 2, 1),
    Sketcher.Constraint("Coincident", 2, 2, 3, 1),
    Sketcher.Constraint("Coincident", 3, 2, 0, 1),
    Sketcher.Constraint("Coincident", 4, 2, 5, 2),
    Sketcher.Constraint("Coincident", 5, 1, 6, 1),
    Sketcher.Constraint("Coincident", 6, 2, 7, 1),
    Sketcher.Constraint("Coincident", 7, 2, 4, 1),
    Sketcher.Constraint("Coincident", 8, 2, 9, 2),
    Sketcher.Constraint("Coincident", 9, 1, 10, 1),
    Sketcher.Constraint("Coincident", 10, 2, 11, 1),
    Sketcher.Constraint("Coincident", 11, 2, 8, 1),
    Sketcher.Constraint("Coincident", 12, 2, 13, 2),
    Sketcher.Constraint("Coincident", 13, 1, 14, 1),
    Sketcher.Constraint("Coincident", 14, 2, 15, 1),
    Sketcher.Constraint("Coincident", 15, 2, 12, 1),
    Sketcher.Constraint("Coincident", 16, 2, 17, 2),
    Sketcher.Constraint("Coincident", 17, 1, 18, 1),
    Sketcher.Constraint("Coincident", 18, 2, 19, 1),
    Sketcher.Constraint("Coincident", 19, 2, 16, 1),
    Sketcher.Constraint("Coincident", 20, 2, 21, 2),
    Sketcher.Constraint("Coincident", 21, 1, 22, 1),
    Sketcher.Constraint("Coincident", 22, 2, 23, 1),
    Sketcher.Constraint("Coincident", 23, 2, 20, 1),
    Sketcher.Constraint("Coincident", 24, 2, 25, 2),
    Sketcher.Constraint("Coincident", 25, 1, 26, 1),
    Sketcher.Constraint("Coincident", 26, 2, 27, 1),
    Sketcher.Constraint("Coincident", 27, 2, 24, 1),
    Sketcher.Constraint("Coincident", 28, 2, 29, 2),
    Sketcher.Constraint("Coincident", 29, 1, 30, 1),
    Sketcher.Constraint("Coincident", 30, 2, 31, 1),
    Sketcher.Constraint("Coincident", 31, 2, 28, 1),
    Sketcher.Constraint("Vertical", 0),
    Sketcher.Constraint("Vertical", 2),
    Sketcher.Constraint("Horizontal", 8),
    Sketcher.Constraint("Horizontal", 10),
    Sketcher.Constraint("Vertical", 16),
    Sketcher.Constraint("Vertical", 18),
    Sketcher.Constraint("Horizontal", 24),
    Sketcher.Constraint("Horizontal", 26),
    Sketcher.Constraint("Coincident", 1, 3, -1, 1),
    Sketcher.Constraint("Coincident", 3, 3, -1, 1),
    Sketcher.Constraint("Coincident", 5, 3, -1, 1),
    Sketcher.Constraint("Coincident", 7, 3, -1, 1),
    Sketcher.Constraint("Coincident", 9, 3, -1, 1),
    Sketcher.Constraint("Coincident", 11, 3, -1, 1),
    Sketcher.Constraint("Coincident", 13, 3, -1, 1),
    Sketcher.Constraint("Coincident", 15, 3, -1, 1),
    Sketcher.Constraint("Coincident", 17, 3, -1, 1),
    Sketcher.Constraint("Coincident", 19, 3, -1, 1),
    Sketcher.Constraint("Coincident", 21, 3, -1, 1),
    Sketcher.Constraint("Coincident", 23, 3, -1, 1),
    Sketcher.Constraint("Coincident", 25, 3, -1, 1),
    Sketcher.Constraint("Coincident", 27, 3, -1, 1),
    Sketcher.Constraint("Coincident", 29, 3, -1, 1),
    Sketcher.Constraint("Coincident", 31, 3, -1, 1),
    Sketcher.Constraint("Equal", 1, 5),
    Sketcher.Constraint("Equal", 3, 7),
    Sketcher.Constraint("Equal", 5, 9),
    Sketcher.Constraint("Equal", 7, 11),
    Sketcher.Constraint("Equal", 9, 13),
    Sketcher.Constraint("Equal", 11, 15),
    Sketcher.Constraint("Equal", 13, 17),
    Sketcher.Constraint("Equal", 15, 19),
    Sketcher.Constraint("Equal", 17, 21),
    Sketcher.Constraint("Equal", 19, 23),
    Sketcher.Constraint("Equal", 21, 25),
    Sketcher.Constraint("Equal", 23, 27),
    Sketcher.Constraint("Equal", 25, 29),
    Sketcher.Constraint("Equal", 27, 31),
    Sketcher.Constraint("Parallel", 4, 6),
    Sketcher.Constraint("Perpendicular", 6, 12),
    Sketcher.Constraint("Parallel", 12, 14),
    Sketcher.Constraint("Perpendicular", 14, 20),
    Sketcher.Constraint("Parallel", 20, 22),
    Sketcher.Constraint("Perpendicular", 22, 28),
    Sketcher.Constraint("Parallel", 28, 30),
    Sketcher.Constraint("Horizontal", 0, 2, 1, 1),
    Sketcher.Constraint("Horizontal", 16, 2, 17, 1),
    Sketcher.Constraint("Horizontal", 13, 1, 20, 2),
    Sketcher.Constraint("Horizontal", 12, 2, 21, 1),
    Sketcher.Constraint("Horizontal", 15, 2, 22, 2),
    Sketcher.Constraint("Horizontal", 10, 2, 24, 2),
    Sketcher.Constraint("Horizontal", 11, 2, 25, 1),
    Sketcher.Constraint("Horizontal", 5, 1, 28, 2),
    Sketcher.Constraint("Horizontal", 4, 2, 29, 1),
    Sketcher.Constraint("Vertical", 8, 2, 9, 1),
    Sketcher.Constraint("Vertical", 5, 1, 12, 2),
    Sketcher.Constraint("Vertical", 4, 2, 13, 1),
    Sketcher.Constraint("Vertical", 2, 2, 16, 2),
    Sketcher.Constraint("Radius", 1, Q("121 mm")),
    Sketcher.Constraint("DistanceX", 0, 2, -1, 1, Q("9 mm")),
    Sketcher.Constraint("DistanceY", -1, 1, 8, 2, Q("9 mm")),
    Sketcher.Constraint("Radius", 3, Q("124.709021 mm")),
    Sketcher.Constraint("DistanceX", -1, 1, 6, 2, Q("94.316619 mm")),
    Sketcher.Constraint("DistanceY", -1, 1, 7, 2, Q("94.316619 mm")),
])
pad2 = body.newObject("PartDesign::Pad", "Pad001")
pad2.Profile = sketch5
pad2.Length = 2
pad2.Reversed = True

# Sketch on XY plane
sketch6 = body.newObject("Sketcher::SketchObject", "Sketch005")
sketch6.AttachmentSupport = (doc.getObject("XY_Plane"), [""])
sketch6.MapMode = "FlatFace"
sketch6.AttachmentOffset = App.Placement(App.Vector(0, 0, 2), App.Rotation())
sketch6.addGeometry([
    Part.Circle(App.Vector(0, 124.4, 0), App.Vector(0, 0, 1), 1.5),  # 0
    Part.Circle(App.Vector(87.9, 87.9, 0), App.Vector(0, 0, 1), 1.5),  # 1
    Part.Circle(App.Vector(124.4, 0, 0), App.Vector(0, 0, 1), 1.5),  # 2
    Part.Circle(App.Vector(87.9, -87.9, 0), App.Vector(0, 0, 1), 1.5),  # 3
    Part.Circle(App.Vector(0, -124.4, 0), App.Vector(0, 0, 1), 1.5),  # 4
    Part.Circle(App.Vector(-87.9, -87.9, 0), App.Vector(0, 0, 1), 1.5),  # 5
    Part.Circle(App.Vector(-124.4, 0, 0), App.Vector(0, 0, 1), 1.5),  # 6
    Part.Circle(App.Vector(-87.9, 87.9, 0), App.Vector(0, 0, 1), 1.5),  # 7
], False)
sketch6.addConstraint([
    Sketcher.Constraint("Equal", 0, 1),
    Sketcher.Constraint("Equal", 1, 2),
    Sketcher.Constraint("Equal", 2, 3),
    Sketcher.Constraint("Equal", 3, 4),
    Sketcher.Constraint("Equal", 4, 5),
    Sketcher.Constraint("Equal", 5, 6),
    Sketcher.Constraint("Equal", 6, 7),
    Sketcher.Constraint("Symmetric", 0, 3, 4, 3, -1, 1),
    Sketcher.Constraint("Symmetric", 1, 3, 5, 3, -1, 1),
    Sketcher.Constraint("Symmetric", 2, 3, 6, 3, -1, 1),
    Sketcher.Constraint("Symmetric", 3, 3, 7, 3, -1, 1),
    Sketcher.Constraint("Symmetric", 3, 3, 5, 3, -2),
    Sketcher.Constraint("PointOnObject", 0, 3, -2),
    Sketcher.Constraint("PointOnObject", 2, 3, -1),
    Sketcher.Constraint("Diameter", 0, Q("3 mm")),
    Sketcher.Constraint("DistanceX", -1, 1, 1, 3, Q("87.938651 mm")),
    Sketcher.Constraint("DistanceY", -1, 1, 1, 3, Q("87.938651 mm")),
    Sketcher.Constraint("DistanceY", -1, 1, 0, 3, Q("124.364033 mm")),
    Sketcher.Constraint("DistanceX", -1, 1, 2, 3, Q("124.364033 mm")),
])
pocket4 = body.newObject("PartDesign::Pocket", "Pocket003")
pocket4.Profile = sketch6
pocket4.Length = 36
doc.recompute()

fillet2 = body.newObject("PartDesign::Fillet", "Fillet001")
fillet2.Base = (pocket4, edges_at(pocket4, [
    (9, 120.665, 1),
    (-9, 120.665, 1),
    (91.687, 78.959, 1),
    (78.959, 91.687, 1),
    (120.665, -9, 1),
    (120.665, 9, 1),
    (78.959, -91.687, 1),
    (91.687, -78.959, 1),
    (-9, -120.665, 1),
    (9, -120.665, 1),
    (-91.687, -78.959, 1),
    (-78.959, -91.687, 1),
    (-120.665, 9, 1),
    (-120.665, -9, 1),
    (-78.959, 91.687, 1),
    (-91.687, 78.959, 1),
]))
fillet2.Radius = 1

doc.recompute()
